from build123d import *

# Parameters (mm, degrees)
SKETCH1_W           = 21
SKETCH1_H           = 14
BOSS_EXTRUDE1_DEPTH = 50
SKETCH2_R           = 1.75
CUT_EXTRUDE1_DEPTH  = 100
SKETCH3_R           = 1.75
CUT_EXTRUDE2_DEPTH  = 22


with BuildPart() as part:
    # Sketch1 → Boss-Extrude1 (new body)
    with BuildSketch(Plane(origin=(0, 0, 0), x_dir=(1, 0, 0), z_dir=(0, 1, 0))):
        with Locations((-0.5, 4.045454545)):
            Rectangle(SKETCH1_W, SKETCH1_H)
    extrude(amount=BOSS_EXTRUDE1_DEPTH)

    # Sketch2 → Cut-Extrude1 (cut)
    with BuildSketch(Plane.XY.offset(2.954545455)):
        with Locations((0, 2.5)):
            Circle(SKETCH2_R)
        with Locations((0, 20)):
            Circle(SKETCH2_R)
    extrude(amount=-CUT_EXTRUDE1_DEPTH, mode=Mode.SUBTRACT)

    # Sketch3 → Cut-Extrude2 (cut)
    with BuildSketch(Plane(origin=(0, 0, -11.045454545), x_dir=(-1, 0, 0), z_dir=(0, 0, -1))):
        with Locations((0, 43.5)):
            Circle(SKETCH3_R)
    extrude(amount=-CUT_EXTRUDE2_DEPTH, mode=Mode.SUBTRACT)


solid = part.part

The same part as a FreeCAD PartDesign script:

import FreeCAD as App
import Part
import Sketcher

doc = App.newDocument("Part")
params = doc.addObject("Spreadsheet::Sheet", "Params")
for row, (alias, value) in enumerate([
    ("sketch1_width", "21 mm"),
    ("sketch1_height", "14 mm"),
    ("pad1_length", "50 mm"),
    ("sketch2_diameter", "3.5 mm"),
    ("pocket1_length", "100 mm"),
    ("sketch3_diameter", "3.5 mm"),
    ("pocket2_length", "22 mm"),
], start=1):
    params.set(f"A{row}", alias)
    params.set(f"B{row}", "=" + value)
    params.setAlias(f"B{row}", alias)

body = doc.addObject("PartDesign::Body", "Body")

sketch1 = doc.addObject("Sketcher::SketchObject", "Sketch")
body.addObject(sketch1)
sketch1.AttachmentSupport = (doc.XZ_Plane, [""])
sketch1.MapMode = "FlatFace"
sketch1.addGeometry(Part.LineSegment(App.Vector(-11, -11.045455, 0), App.Vector(-11, 2.954545, 0)), False)
sketch1.addGeometry(Part.LineSegment(App.Vector(-11, 2.954545, 0), App.Vector(10, 2.954545, 0)), False)
sketch1.addGeometry(Part.LineSegment(App.Vector(10, 2.954545, 0), App.Vector(10, -11.045455, 0)), False)
sketch1.addGeometry(Part.LineSegment(App.Vector(10, -11.045455, 0), App.Vector(-11, -11.045455, 0)), False)
sketch1.addConstraint(Sketcher.Constraint("Coincident", 0, 2, 1, 1))
sketch1.addConstraint(Sketcher.Constraint("Coincident", 1, 2, 2, 1))
sketch1.addConstraint(Sketcher.Constraint("Coincident", 2, 2, 3, 1))
sketch1.addConstraint(Sketcher.Constraint("Coincident", 3, 2, 0, 1))
sketch1.addConstraint(Sketcher.Constraint("Vertical", 0))
sketch1.addConstraint(Sketcher.Constraint("Horizontal", 1))
sketch1.addConstraint(Sketcher.Constraint("Vertical", 2))
sketch1.addConstraint(Sketcher.Constraint("Horizontal", 3))
sketch1.addConstraint(Sketcher.Constraint("DistanceX", 1, 1, 1, 2, 21.0))
sketch1.addConstraint(Sketcher.Constraint("DistanceY", 0, 1, 0, 2, 14.0))
sketch1.addConstraint(Sketcher.Constraint("DistanceX", 0, 2, -1, 1, 11.0))
sketch1.addConstraint(Sketcher.Constraint("DistanceY", -1, 1, 0, 2, 2.954545))
sketch1.setExpression("Constraints[8]", "Params.sketch1_width")
sketch1.setExpression("Constraints[9]", "Params.sketch1_height")
pad1 = doc.addObject("PartDesign::Pad", "Pad")
body.addObject(pad1)
pad1.Profile = sketch1
pad1.setExpression("Length", "Params.pad1_length")
pad1.Reversed = True

sketch2 = doc.addObject("Sketcher::SketchObject", "Sketch001")
body.addObject(sketch2)
sketch2.AttachmentSupport = (doc.XY_Plane, [""])
sketch2.MapMode = "FlatFace"
sketch2.AttachmentOffset = App.Placement(App.Vector(0, 0, 2.954545), App.Rotation())
sketch2.addGeometry(Part.Circle(App.Vector(0, 2.5, 0), App.Vector(0, 0, 1), 1.75), False)
sketch2.addGeometry(Part.Circle(App.Vector(0, 20, 0), App.Vector(0, 0, 1), 1.75), False)
sketch2.addConstraint(Sketcher.Constraint("Equal", 0, 1))
sketch2.addConstraint(Sketcher.Constraint("PointOnObject", 0, 3, -2))
sketch2.addConstraint(Sketcher.Constraint("PointOnObject", 1, 3, -2))
sketch2.addConstraint(Sketcher.Constraint("Diameter", 0, 3.5))
sketch2.addConstraint(Sketcher.Constraint("DistanceY", -1, 1, 1, 3, 20.0))
sketch2.addConstraint(Sketcher.Constraint("DistanceY", -1, 1, 0, 3, 2.5))
sketch2.setExpression("Constraints[3]", "Params.sketch2_diameter")
pocket1 = doc.addObject("PartDesign::Pocket", "Pocket")
body.addObject(pocket1)
pocket1.Profile = sketch2
pocket1.setExpression("Length", "Params.pocket1_length")

sketch3 = doc.addObject("Sketcher::SketchObject", "Sketch002")
body.addObject(sketch3)
sketch3.AttachmentSupport = (doc.XY_Plane, [""])
sketch3.MapMode = "FlatFace"
sketch3.AttachmentOffset = App.Placement(App.Vector(0, 0, -11.045455), App.Rotation())
sketch3.addGeometry(Part.Circle(App.Vector(0, 43.5, 0), App.Vector(0, 0, 1), 1.75), False)
sketch3.addConstraint(Sketcher.Constraint("PointOnObject", 0, 3, -2))
sketch3.addConstraint(Sketcher.Constraint("Diameter", 0, 3.5))
sketch3.addConstraint(Sketcher.Constraint("DistanceY", -1, 1, 0, 3, 43.5))
sketch3.setExpression("Constraints[1]", "Params.sketch3_diameter")
pocket2 = doc.addObject("PartDesign::Pocket", "Pocket001")
body.addObject(pocket2)
pocket2.Profile = sketch3
pocket2.setExpression("Length", "Params.pocket2_length")
pocket2.Reversed = True

doc.recompute()
